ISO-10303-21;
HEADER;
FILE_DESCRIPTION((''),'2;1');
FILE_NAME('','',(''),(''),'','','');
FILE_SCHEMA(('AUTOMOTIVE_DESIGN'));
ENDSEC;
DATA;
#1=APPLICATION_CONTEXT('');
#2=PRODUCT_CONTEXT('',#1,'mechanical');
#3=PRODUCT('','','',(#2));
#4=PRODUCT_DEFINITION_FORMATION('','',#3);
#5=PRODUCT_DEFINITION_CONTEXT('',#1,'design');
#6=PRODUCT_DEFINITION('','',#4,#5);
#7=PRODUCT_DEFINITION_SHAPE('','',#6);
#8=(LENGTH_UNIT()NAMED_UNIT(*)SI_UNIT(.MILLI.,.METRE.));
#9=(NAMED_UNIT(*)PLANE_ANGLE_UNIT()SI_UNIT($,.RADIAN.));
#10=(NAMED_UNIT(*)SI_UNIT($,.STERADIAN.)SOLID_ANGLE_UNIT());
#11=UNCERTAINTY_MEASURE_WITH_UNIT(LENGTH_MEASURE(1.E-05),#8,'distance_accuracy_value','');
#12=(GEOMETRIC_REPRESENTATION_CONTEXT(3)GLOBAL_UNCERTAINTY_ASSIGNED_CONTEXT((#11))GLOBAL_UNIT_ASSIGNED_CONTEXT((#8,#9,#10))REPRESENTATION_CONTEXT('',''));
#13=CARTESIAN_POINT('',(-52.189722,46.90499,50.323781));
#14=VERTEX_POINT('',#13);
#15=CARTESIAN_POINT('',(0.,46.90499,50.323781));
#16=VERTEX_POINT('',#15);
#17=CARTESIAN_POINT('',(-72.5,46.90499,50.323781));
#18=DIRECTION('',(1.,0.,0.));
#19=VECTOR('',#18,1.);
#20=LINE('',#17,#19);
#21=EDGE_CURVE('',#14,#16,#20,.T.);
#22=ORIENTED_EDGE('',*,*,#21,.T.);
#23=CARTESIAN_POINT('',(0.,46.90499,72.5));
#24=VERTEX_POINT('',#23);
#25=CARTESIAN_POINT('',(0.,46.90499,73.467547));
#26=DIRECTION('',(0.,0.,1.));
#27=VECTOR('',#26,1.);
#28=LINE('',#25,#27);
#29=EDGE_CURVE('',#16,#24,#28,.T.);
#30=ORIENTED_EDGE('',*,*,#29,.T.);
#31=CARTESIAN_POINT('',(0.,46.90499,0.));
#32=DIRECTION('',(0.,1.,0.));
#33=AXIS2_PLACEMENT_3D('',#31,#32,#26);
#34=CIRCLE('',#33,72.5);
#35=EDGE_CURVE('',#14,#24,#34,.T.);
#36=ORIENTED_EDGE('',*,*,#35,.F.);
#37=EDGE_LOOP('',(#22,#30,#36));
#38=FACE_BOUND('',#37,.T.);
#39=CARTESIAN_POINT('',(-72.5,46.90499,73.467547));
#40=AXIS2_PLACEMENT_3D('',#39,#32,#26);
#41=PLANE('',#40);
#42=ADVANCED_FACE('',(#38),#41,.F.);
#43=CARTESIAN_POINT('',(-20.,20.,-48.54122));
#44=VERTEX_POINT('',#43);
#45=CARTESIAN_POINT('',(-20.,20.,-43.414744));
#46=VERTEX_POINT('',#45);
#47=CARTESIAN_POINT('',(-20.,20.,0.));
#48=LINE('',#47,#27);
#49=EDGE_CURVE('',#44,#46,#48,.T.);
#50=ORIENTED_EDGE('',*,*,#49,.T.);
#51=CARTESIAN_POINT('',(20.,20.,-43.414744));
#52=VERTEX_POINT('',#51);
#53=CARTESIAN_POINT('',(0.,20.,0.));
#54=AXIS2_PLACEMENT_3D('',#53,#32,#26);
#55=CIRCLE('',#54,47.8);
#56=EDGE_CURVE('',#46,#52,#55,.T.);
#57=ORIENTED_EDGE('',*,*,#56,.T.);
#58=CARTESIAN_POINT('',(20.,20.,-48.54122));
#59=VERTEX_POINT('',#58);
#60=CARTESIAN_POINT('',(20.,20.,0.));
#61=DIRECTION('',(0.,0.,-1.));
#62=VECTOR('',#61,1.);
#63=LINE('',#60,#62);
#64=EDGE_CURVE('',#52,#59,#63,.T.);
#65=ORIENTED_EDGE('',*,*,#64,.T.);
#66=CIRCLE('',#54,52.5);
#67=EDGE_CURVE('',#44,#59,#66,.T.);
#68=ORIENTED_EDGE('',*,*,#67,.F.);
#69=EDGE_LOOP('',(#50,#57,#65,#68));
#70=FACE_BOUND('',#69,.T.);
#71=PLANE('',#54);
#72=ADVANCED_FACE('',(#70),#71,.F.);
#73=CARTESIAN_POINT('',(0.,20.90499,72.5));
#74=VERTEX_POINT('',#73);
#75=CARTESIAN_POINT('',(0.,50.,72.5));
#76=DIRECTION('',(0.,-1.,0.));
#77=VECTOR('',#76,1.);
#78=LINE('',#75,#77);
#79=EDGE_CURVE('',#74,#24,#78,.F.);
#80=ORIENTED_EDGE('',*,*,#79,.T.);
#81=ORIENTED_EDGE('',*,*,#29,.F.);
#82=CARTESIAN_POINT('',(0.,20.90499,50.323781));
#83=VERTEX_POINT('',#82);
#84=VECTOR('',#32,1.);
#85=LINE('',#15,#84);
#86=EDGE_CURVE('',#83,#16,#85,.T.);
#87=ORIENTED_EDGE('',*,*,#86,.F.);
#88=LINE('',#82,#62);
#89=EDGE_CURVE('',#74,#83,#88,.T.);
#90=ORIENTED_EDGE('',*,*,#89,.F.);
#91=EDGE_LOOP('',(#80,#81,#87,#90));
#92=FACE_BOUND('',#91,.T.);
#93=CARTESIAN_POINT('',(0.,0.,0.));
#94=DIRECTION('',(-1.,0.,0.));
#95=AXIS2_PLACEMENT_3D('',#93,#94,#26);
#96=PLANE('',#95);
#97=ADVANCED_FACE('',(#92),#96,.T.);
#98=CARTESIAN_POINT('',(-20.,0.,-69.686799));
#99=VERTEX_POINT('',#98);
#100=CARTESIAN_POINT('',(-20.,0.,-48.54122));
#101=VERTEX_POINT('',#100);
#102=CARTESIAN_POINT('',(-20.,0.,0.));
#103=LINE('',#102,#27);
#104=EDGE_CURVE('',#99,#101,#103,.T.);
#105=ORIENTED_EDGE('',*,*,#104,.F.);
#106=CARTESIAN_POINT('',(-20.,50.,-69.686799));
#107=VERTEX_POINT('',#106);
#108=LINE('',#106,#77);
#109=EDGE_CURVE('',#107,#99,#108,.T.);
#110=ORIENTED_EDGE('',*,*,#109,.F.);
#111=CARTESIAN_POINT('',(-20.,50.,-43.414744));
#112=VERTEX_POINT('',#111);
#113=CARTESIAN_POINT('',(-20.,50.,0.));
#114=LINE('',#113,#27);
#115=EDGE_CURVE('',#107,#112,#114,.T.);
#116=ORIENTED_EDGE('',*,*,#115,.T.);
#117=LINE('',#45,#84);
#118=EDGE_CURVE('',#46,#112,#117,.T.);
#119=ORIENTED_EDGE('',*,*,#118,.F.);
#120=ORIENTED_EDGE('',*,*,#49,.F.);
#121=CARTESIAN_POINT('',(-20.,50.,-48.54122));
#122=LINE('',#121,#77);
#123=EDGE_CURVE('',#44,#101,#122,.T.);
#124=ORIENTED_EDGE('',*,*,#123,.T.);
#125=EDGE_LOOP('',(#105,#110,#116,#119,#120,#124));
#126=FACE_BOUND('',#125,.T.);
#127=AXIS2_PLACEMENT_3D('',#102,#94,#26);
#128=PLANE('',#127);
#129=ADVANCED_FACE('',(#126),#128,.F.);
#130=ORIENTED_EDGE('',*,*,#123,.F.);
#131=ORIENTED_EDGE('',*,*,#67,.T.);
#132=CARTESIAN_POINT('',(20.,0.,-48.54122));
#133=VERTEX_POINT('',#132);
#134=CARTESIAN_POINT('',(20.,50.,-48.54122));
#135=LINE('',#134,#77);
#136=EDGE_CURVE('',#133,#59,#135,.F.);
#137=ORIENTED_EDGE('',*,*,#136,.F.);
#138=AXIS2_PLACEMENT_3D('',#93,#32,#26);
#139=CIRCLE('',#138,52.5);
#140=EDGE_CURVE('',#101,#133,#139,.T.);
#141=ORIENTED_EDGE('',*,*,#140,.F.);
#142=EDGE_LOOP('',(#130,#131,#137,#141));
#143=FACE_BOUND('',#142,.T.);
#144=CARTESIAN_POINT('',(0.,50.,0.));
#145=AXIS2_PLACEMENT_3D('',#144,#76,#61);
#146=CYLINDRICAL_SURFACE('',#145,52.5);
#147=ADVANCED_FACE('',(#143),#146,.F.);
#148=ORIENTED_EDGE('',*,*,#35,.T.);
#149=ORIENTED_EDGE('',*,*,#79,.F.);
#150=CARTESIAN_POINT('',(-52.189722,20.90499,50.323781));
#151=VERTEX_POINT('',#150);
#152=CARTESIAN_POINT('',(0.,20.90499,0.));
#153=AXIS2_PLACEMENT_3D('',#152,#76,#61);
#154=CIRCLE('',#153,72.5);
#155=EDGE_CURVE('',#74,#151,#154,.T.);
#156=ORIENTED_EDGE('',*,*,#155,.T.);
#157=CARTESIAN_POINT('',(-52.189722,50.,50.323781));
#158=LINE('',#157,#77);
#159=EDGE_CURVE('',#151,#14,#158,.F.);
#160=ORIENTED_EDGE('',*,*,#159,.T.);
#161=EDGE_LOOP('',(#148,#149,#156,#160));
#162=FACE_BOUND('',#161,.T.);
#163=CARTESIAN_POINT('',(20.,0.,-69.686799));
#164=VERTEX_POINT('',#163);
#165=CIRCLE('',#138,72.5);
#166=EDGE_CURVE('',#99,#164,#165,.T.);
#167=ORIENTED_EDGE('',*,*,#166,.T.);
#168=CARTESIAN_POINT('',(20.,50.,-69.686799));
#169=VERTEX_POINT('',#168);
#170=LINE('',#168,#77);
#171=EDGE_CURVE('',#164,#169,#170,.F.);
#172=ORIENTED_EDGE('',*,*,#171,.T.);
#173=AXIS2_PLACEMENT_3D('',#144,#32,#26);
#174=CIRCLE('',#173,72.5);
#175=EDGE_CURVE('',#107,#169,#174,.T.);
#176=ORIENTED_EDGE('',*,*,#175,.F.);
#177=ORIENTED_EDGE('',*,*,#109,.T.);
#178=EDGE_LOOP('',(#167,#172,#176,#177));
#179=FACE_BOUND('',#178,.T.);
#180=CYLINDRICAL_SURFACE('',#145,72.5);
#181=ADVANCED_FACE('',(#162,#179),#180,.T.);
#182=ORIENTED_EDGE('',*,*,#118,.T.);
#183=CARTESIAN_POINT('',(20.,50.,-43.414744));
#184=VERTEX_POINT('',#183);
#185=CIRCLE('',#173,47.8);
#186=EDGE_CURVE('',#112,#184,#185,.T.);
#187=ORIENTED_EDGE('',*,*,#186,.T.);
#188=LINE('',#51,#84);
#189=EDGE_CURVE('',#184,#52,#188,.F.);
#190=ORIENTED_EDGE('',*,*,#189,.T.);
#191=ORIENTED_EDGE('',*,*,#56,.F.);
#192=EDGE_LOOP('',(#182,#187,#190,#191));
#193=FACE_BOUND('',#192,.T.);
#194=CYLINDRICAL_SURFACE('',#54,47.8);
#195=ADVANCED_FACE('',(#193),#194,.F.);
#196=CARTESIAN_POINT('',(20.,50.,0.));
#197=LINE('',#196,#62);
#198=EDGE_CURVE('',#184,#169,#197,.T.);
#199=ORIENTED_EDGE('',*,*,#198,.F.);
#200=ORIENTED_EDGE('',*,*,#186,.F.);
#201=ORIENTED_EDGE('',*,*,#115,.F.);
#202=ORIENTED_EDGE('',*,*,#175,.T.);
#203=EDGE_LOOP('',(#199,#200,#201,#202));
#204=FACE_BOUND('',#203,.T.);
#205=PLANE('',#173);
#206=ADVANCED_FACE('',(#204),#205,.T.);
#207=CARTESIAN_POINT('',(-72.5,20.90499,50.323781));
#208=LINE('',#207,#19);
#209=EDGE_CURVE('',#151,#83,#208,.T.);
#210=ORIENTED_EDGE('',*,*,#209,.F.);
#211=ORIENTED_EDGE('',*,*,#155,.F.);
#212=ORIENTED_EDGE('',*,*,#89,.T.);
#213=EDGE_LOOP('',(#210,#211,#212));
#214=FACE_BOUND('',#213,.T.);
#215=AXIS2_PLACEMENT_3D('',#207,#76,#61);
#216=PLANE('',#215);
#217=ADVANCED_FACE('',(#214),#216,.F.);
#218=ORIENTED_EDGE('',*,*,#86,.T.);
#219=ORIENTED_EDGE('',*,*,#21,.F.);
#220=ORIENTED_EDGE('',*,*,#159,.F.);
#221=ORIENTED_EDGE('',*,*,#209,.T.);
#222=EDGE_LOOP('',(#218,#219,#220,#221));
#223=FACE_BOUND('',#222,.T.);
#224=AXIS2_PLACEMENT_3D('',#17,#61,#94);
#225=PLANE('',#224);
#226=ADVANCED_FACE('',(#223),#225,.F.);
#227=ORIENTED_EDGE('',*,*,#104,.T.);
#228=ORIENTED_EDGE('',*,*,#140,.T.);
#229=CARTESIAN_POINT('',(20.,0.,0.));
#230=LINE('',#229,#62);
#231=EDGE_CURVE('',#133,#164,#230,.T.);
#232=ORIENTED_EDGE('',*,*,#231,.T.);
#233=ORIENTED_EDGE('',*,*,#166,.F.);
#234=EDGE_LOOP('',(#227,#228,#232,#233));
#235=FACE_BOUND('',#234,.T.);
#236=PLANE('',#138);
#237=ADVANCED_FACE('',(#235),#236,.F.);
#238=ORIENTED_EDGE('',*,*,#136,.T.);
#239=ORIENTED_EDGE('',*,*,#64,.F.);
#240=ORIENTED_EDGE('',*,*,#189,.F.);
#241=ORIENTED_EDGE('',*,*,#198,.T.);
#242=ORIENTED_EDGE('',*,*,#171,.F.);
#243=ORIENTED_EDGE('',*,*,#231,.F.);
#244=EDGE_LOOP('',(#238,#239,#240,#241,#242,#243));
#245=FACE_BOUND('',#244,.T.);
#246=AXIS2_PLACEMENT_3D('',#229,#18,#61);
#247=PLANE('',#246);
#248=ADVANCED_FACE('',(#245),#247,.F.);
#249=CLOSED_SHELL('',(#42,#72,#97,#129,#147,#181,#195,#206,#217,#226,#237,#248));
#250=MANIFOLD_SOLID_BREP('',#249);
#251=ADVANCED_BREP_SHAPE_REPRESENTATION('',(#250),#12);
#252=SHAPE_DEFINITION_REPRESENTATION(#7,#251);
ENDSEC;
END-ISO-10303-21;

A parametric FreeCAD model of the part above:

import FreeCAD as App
import Part
import Sketcher
from FreeCAD import Vector


def add_polygon(sketch, points):
    """Adds a closed chain of lines whose ends are joined by coincident constraints."""
    first, n = sketch.GeometryCount, len(points)
    for a, b in zip(points, points[1:] + points[:1]):
        sketch.addGeometry(Part.LineSegment(App.Vector(*a, 0), App.Vector(*b, 0)), False)
    for i in range(n):
        sketch.addConstraint(Sketcher.Constraint("Coincident", first + i, 2, first + (i + 1) % n, 1))

doc = App.newDocument("Part")
body = doc.addObject("PartDesign::Body", "Body")

# Sketch on XZ plane
sketch1 = doc.addObject("Sketcher::SketchObject", "Sketch")
body.addObject(sketch1)
sketch1.AttachmentSupport = (doc.XZ_Plane, [""])
sketch1.MapMode = "FlatFace"
sketch1.addGeometry([
    Part.Circle(Vector(0, 0, 0), Vector(0, 0, 1), 72),
    Part.Circle(Vector(0, 0, 0), Vector(0, 0, 1), 52),
], False)
sketch1.addConstraint([
    Sketcher.Constraint("Coincident", 0, 3, -1, 1),
    Sketcher.Constraint("Coincident", 1, 3, -1, 1),
    Sketcher.Constraint("Diameter", 0, 145.0),
    Sketcher.Constraint("Diameter", 1, 105.0),
])
pad1 = doc.addObject("PartDesign::Pad", "Pad")
body.addObject(pad1)
pad1.Profile = sketch1
pad1.Length = 50
pad1.Reversed = True

# Sketch on XZ plane
sketch2 = doc.addObject("Sketcher::SketchObject", "Sketch001")
body.addObject(sketch2)
sketch2.AttachmentSupport = (doc.XZ_Plane, [""])
sketch2.MapMode = "FlatFace"
sketch2.AttachmentOffset = App.Placement(Vector(0, 0, -50), App.Rotation())
add_polygon(sketch2, [(-20, -97), (-20, 0), (20, 0), (20, -97)])  # lines 0-3
sketch2.addConstraint([
    Sketcher.Constraint("Vertical", 0),
    Sketcher.Constraint("Horizontal", 1),
    Sketcher.Constraint("Vertical", 2),
    Sketcher.Constraint("Horizontal", 3),
    Sketcher.Constraint("Symmetric", 0, 2, 1, 2, -1, 1),
    Sketcher.Constraint("DistanceX", 1, 1, 1, 2, 40.0),
    Sketcher.Constraint("DistanceY", 0, 1, 0, 2, 97.356984),
])
pocket1 = doc.addObject("PartDesign::Pocket", "Pocket")
body.addObject(pocket1)
pocket1.Profile = sketch2
pocket1.Type = "ThroughAll"
pocket1.Midplane = True

# Sketch on XZ plane
sketch3 = doc.addObject("Sketcher::SketchObject", "Sketch002")
body.addObject(sketch3)
sketch3.AttachmentSupport = (doc.XZ_Plane, [""])
sketch3.MapMode = "FlatFace"
sketch3.AttachmentOffset = App.Placement(Vector(0, 0, -20), App.Rotation())
sketch3.addGeometry([
    Part.Circle(Vector(0, 0, 0), Vector(0, 0, 1), 52),
    Part.Circle(Vector(0, 0, 0), Vector(0, 0, 1), 48),
], False)
sketch3.addConstraint([
    Sketcher.Constraint("Coincident", 0, 3, -1, 1),
    Sketcher.Constraint("Coincident", 1, 3, -1, 1),
    Sketcher.Constraint("Diameter", 0, 105.0),
    Sketcher.Constraint("Diameter", 1, 95.6),
])
pad2 = doc.addObject("PartDesign::Pad", "Pad001")
body.addObject(pad2)
pad2.Profile = sketch3
pad2.Length = 30
pad2.Reversed = True

# Sketch on XZ plane
sketch4 = doc.addObject("Sketcher::SketchObject", "Sketch003")
body.addObject(sketch4)
sketch4.AttachmentSupport = (doc.XZ_Plane, [""])
sketch4.MapMode = "FlatFace"
sketch4.AttachmentOffset = App.Placement(Vector(0, 0, -50), App.Rotation())
add_polygon(sketch4, [(-20, -30), (20, -30), (20, -74), (-20, -74)])  # lines 0-3
sketch4.addConstraint([
    Sketcher.Constraint("Horizontal", 0),
    Sketcher.Constraint("Vertical", 1),
    Sketcher.Constraint("Horizontal", 2),
    Sketcher.Constraint("Vertical", 3),
    Sketcher.Constraint("DistanceX", 0, 1, 0, 2, 40.0),
    Sketcher.Constraint("DistanceX", -1, 1, 0, 2, 20.0),
    Sketcher.Constraint("DistanceY", 1, 2, 1, 1, 43.909865),
    Sketcher.Constraint("DistanceY", 1, 2, -1, 1, 73.665252),
])
pocket2 = doc.addObject("PartDesign::Pocket", "Pocket001")
body.addObject(pocket2)
pocket2.Profile = sketch4
pocket2.Type = "ThroughAll"
pocket2.Midplane = True

# Sketch on YZ plane
sketch5 = doc.addObject("Sketcher::SketchObject", "Sketch004")
body.addObject(sketch5)
sketch5.AttachmentSupport = (doc.YZ_Plane, [""])
sketch5.MapMode = "FlatFace"
add_polygon(sketch5, [(47, 73), (21, 73), (21, 50), (47, 50)])  # lines 0-3
sketch5.addConstraint([
    Sketcher.Constraint("Horizontal", 0),
    Sketcher.Constraint("Vertical", 1),
    Sketcher.Constraint("Horizontal", 2),
    Sketcher.Constraint("Vertical", 3),
    Sketcher.Constraint("DistanceX", 0, 2, 0, 1, 26.0),
    Sketcher.Constraint("DistanceY", 1, 2, 1, 1, 23.143766),
    Sketcher.Constraint("DistanceX", -1, 1, 0, 2, 20.90499),
    Sketcher.Constraint("DistanceY", -1, 1, 1, 2, 50.323781),
])
pocket3 = doc.addObject("PartDesign::Pocket", "Pocket002")
body.addObject(pocket3)
pocket3.Profile = sketch5
pocket3.Type = "ThroughAll"

doc.recompute()
